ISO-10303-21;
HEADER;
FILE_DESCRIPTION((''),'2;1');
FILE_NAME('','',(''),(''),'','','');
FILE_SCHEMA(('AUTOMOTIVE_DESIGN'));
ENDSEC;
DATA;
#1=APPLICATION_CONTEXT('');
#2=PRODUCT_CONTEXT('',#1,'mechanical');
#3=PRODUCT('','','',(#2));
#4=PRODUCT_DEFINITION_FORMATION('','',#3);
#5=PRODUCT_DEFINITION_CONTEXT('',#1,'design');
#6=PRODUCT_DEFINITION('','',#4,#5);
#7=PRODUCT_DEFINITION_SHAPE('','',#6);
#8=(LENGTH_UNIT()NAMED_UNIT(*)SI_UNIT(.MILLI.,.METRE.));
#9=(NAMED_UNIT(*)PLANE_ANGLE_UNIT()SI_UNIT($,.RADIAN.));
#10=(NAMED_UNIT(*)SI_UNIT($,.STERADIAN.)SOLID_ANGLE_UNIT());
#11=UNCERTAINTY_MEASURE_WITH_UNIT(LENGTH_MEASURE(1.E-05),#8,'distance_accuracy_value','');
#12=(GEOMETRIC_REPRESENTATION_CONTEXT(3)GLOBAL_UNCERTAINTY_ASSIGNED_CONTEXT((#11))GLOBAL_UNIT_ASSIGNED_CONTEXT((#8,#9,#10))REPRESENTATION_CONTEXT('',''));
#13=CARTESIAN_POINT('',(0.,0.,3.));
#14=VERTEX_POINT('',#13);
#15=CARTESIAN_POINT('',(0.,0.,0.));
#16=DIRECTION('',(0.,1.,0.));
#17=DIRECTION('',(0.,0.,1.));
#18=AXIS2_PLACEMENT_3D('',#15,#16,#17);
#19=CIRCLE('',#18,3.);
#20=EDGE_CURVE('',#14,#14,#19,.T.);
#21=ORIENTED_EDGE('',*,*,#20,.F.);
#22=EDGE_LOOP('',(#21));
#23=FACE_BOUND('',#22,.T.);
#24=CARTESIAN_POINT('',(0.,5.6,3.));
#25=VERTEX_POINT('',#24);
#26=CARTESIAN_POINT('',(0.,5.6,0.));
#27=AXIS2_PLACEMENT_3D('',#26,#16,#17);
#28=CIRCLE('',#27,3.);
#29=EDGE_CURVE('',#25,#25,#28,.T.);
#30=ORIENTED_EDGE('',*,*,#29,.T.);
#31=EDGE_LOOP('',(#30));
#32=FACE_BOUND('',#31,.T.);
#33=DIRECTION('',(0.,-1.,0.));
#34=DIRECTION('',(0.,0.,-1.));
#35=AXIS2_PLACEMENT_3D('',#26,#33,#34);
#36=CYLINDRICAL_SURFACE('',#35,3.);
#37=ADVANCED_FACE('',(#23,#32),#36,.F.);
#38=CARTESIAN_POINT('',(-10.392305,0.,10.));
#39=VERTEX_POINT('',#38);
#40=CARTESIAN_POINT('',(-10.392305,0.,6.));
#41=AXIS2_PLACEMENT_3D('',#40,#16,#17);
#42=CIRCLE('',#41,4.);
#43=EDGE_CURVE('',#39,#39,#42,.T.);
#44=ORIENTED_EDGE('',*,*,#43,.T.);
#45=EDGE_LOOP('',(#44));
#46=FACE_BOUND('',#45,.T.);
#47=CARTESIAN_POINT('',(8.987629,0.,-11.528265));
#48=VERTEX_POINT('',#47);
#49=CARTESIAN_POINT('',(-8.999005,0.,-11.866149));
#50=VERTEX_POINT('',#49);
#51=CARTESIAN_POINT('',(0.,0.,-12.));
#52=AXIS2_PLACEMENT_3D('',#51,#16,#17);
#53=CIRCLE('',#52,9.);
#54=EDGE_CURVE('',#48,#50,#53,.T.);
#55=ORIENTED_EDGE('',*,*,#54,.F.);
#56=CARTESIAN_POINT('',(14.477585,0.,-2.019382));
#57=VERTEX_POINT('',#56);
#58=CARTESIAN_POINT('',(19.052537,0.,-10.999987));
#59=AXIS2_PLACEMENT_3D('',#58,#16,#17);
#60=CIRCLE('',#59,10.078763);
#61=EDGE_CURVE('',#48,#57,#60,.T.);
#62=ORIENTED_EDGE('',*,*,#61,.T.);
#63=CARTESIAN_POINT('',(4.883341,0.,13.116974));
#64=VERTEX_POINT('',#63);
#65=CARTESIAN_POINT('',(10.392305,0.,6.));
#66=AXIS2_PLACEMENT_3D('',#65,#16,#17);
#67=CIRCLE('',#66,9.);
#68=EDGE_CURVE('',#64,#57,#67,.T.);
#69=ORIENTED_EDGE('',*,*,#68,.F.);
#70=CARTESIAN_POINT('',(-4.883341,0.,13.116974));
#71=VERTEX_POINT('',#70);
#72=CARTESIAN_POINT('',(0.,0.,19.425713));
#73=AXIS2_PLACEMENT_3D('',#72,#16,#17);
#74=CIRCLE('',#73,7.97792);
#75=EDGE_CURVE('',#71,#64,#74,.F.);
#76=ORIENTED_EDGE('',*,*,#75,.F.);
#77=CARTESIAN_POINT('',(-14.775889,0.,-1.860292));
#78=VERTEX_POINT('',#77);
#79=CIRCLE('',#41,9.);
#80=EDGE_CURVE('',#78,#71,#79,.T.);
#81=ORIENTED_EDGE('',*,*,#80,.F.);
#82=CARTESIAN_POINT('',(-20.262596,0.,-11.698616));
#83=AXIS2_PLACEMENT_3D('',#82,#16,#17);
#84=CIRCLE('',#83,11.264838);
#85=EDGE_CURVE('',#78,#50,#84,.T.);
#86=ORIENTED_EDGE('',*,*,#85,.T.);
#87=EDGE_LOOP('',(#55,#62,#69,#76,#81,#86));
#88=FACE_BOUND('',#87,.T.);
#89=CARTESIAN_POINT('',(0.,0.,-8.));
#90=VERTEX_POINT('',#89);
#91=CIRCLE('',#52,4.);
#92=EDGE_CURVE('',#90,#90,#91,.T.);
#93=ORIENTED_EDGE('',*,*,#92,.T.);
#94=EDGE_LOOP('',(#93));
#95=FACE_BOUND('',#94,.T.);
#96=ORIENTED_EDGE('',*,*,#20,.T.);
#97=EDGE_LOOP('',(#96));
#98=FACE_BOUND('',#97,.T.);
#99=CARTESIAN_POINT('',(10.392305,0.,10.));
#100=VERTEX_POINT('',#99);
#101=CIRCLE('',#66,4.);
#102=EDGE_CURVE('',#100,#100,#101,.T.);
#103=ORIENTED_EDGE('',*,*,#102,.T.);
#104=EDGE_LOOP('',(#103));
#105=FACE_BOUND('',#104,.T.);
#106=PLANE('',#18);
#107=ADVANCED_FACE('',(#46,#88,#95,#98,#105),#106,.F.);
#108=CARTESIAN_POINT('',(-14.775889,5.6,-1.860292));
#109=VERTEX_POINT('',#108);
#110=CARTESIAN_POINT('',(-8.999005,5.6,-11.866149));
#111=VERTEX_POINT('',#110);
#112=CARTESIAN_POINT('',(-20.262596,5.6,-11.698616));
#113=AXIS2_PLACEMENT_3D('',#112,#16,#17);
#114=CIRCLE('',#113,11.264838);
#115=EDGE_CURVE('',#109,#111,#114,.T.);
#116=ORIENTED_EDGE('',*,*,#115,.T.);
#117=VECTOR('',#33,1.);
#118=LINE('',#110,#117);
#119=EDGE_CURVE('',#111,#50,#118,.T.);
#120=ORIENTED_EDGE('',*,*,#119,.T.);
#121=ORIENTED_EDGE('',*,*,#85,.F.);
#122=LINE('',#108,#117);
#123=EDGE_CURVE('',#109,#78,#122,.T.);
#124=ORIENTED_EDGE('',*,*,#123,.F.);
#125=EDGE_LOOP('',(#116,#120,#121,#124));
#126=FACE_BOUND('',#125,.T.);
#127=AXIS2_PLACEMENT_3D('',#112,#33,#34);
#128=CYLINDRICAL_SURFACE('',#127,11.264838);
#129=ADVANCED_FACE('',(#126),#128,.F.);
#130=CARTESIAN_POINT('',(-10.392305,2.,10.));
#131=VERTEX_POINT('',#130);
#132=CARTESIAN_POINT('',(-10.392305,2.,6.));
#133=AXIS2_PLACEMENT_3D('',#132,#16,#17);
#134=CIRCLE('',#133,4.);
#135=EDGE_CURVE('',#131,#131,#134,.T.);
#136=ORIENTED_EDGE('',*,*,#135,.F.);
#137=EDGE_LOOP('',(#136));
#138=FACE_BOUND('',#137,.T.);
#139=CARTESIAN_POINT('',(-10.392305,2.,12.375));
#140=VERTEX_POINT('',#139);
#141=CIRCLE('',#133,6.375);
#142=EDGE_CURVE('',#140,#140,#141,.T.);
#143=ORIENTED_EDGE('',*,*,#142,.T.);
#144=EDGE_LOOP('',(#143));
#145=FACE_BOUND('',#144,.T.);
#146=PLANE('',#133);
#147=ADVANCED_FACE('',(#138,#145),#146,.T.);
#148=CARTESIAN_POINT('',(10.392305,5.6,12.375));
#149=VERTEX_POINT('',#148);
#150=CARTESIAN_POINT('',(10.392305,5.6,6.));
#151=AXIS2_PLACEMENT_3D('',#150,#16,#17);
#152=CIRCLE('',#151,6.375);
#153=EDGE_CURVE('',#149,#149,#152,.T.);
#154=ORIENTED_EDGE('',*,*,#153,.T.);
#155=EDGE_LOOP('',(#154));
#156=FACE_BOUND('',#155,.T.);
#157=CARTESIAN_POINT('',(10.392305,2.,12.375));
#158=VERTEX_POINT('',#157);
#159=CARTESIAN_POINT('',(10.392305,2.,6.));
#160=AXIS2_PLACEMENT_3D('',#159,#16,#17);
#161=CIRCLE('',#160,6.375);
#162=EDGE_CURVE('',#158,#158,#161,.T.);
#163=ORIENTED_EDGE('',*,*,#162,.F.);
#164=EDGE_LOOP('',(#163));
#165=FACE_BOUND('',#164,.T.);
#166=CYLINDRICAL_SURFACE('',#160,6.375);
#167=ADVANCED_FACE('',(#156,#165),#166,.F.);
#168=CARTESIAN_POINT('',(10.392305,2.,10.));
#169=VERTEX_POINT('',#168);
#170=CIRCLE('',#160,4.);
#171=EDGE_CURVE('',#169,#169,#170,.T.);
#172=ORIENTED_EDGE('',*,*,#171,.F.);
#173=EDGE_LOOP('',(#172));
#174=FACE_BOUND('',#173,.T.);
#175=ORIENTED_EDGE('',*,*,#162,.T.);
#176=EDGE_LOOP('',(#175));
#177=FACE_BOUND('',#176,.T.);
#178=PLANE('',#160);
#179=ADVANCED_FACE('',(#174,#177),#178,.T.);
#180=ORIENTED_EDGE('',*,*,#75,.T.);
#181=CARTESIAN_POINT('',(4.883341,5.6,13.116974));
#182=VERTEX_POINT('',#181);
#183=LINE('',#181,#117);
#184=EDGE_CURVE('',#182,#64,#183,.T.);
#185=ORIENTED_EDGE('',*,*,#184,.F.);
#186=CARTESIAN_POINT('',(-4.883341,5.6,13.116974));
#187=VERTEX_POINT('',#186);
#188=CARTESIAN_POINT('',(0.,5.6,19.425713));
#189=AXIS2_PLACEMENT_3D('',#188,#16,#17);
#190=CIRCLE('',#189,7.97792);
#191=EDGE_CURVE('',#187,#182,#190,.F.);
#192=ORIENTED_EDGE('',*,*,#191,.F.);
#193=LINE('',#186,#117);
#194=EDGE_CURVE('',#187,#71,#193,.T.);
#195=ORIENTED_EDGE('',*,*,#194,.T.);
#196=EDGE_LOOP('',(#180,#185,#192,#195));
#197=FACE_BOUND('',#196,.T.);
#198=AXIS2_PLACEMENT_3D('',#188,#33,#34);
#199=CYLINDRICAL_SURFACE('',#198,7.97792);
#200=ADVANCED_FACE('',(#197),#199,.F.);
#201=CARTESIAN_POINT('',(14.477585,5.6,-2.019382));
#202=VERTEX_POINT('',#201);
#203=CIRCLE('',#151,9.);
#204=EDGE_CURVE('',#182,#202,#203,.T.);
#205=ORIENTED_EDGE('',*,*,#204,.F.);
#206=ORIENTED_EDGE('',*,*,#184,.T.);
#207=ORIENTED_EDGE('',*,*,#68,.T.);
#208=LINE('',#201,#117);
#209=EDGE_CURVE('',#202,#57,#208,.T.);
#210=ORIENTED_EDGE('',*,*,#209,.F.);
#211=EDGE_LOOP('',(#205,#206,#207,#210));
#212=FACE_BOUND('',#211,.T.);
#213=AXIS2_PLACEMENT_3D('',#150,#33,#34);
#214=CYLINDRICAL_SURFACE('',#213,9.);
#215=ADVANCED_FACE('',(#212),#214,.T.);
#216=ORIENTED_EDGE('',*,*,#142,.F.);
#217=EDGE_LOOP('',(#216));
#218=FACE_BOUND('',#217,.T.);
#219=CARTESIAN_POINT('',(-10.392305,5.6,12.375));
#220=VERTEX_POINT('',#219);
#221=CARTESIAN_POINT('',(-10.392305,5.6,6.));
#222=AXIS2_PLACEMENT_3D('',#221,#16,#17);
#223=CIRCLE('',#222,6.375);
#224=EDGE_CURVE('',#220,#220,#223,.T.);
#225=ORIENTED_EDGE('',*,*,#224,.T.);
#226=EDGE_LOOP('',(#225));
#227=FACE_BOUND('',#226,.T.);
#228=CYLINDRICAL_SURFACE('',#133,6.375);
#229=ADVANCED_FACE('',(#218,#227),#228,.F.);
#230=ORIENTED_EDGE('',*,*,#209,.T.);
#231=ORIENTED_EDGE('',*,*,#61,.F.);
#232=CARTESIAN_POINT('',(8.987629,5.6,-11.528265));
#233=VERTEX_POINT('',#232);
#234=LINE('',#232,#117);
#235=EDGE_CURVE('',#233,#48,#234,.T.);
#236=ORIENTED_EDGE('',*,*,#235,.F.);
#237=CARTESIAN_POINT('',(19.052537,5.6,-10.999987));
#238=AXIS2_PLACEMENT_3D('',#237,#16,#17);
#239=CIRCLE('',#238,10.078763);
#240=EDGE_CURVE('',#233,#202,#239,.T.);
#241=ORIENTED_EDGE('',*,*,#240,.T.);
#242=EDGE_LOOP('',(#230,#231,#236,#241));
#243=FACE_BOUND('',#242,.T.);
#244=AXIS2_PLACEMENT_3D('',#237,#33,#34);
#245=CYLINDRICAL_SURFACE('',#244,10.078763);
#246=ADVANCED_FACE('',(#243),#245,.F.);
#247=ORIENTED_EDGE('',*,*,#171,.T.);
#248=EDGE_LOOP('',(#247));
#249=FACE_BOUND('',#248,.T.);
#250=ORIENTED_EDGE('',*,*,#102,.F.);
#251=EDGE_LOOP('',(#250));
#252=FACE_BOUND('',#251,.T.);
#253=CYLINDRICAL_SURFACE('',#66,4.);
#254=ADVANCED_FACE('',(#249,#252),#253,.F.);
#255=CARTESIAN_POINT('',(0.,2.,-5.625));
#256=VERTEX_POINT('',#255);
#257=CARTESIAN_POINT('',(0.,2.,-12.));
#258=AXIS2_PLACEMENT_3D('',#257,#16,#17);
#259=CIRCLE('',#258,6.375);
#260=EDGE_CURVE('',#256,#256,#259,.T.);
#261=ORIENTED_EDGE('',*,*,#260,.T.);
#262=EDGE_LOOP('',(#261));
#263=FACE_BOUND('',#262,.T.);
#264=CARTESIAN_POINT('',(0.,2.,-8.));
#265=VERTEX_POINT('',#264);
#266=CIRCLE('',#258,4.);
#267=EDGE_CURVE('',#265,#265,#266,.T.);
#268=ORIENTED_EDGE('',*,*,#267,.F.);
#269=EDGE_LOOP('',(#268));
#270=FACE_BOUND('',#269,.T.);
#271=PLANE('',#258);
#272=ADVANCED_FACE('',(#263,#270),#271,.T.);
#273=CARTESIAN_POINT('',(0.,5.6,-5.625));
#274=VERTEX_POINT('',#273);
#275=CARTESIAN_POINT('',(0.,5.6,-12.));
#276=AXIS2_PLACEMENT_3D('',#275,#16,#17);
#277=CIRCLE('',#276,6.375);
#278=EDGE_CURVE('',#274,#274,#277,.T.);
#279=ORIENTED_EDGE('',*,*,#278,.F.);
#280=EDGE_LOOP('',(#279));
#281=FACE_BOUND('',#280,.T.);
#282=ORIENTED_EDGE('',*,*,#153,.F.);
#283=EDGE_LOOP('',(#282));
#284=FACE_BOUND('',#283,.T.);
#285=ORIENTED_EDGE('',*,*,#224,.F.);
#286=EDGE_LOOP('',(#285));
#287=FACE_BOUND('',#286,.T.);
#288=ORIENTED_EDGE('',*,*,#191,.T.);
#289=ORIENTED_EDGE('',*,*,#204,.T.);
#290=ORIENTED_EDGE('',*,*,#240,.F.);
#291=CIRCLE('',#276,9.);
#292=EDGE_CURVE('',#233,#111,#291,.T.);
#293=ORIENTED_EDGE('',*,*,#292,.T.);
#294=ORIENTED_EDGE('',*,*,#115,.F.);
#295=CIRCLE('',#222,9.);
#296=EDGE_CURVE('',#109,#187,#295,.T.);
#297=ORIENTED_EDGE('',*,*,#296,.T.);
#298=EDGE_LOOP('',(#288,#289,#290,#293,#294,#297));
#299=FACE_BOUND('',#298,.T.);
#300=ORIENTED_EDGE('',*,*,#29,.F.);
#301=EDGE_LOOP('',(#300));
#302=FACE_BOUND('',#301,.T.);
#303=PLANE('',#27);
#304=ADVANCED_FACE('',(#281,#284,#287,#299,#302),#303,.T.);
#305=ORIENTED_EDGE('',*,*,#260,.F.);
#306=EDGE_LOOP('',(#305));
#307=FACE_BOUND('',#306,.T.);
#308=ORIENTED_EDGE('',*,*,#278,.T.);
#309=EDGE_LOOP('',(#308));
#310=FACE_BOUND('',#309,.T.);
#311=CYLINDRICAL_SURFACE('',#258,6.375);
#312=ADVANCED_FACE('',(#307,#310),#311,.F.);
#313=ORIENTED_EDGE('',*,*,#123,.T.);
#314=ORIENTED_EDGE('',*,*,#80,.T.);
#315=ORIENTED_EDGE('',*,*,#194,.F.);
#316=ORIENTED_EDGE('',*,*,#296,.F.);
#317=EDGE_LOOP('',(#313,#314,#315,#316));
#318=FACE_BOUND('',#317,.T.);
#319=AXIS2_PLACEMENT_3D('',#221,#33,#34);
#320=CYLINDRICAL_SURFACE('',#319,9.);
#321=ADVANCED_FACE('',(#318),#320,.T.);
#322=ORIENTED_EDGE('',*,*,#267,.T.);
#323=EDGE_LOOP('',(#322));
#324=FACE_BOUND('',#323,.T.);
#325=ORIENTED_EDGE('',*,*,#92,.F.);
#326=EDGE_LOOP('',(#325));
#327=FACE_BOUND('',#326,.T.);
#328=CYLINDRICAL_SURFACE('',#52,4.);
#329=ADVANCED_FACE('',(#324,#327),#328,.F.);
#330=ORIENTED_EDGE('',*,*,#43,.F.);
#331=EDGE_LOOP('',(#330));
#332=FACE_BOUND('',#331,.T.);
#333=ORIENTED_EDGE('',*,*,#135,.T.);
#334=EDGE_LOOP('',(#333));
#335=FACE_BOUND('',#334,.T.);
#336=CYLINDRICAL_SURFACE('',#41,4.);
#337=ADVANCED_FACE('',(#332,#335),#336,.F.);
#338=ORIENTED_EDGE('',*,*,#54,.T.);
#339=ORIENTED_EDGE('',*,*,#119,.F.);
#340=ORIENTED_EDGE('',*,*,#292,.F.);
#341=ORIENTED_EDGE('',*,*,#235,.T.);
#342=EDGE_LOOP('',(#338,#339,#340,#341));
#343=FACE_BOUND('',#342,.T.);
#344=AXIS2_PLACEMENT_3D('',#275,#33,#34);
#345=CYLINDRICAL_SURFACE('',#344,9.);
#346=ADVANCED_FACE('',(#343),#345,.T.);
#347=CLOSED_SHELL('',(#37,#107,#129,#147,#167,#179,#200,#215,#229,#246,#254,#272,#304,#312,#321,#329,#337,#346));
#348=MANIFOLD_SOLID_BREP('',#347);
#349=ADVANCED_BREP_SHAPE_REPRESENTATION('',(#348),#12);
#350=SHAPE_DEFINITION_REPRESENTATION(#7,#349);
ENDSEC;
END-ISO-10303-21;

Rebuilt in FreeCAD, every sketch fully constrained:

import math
import FreeCAD as App
import Part
import Sketcher
Q = App.Units.Quantity

doc = App.newDocument("Part")
params = doc.addObject("Spreadsheet::Sheet", "Params")
for row, (alias, value) in enumerate([
    ("sketch1_diameter", "6 mm"),
    ("sketch1_radius", "9 mm"),
    ("pad1_length", "5.6 mm"),
    ("sketch2_diameter", "12.75 mm"),
    ("pocket1_length", "3.6 mm"),
    ("sketch3_diameter", "8 mm"),
], start=1):
    params.set(f"A{row}", alias)
    params.set(f"B{row}", "=" + value)
    params.setAlias(f"B{row}", alias)

body = doc.addObject("PartDesign::Body", "Body")

# Sketch on XZ plane
sketch1 = doc.addObject("Sketcher::SketchObject", "Sketch")
body.addObject(sketch1)
sketch1.AttachmentSupport = (doc.XZ_Plane, [""])
sketch1.MapMode = "FlatFace"
sketch1.addGeometry([
    Part.ArcOfCircle(Part.Circle(App.Vector(-10.4, 6, 0), App.Vector(0, 0, 1), 9), math.radians(52), math.radians(241)),  # 0
    Part.ArcOfCircle(Part.Circle(App.Vector(0, 19.4, 0), App.Vector(0, 0, 1), 8), math.radians(-128), math.radians(-52)),  # 1
    Part.ArcOfCircle(Part.Circle(App.Vector(10.4, 6, 0), App.Vector(0, 0, 1), 9), math.radians(-63), math.radians(128)),  # 2
    Part.ArcOfCircle(Part.Circle(App.Vector(19.1, -11, 0), App.Vector(0, 0, 1), 10.1), math.radians(117), math.radians(183)),  # 3
    Part.ArcOfCircle(Part.Circle(App.Vector(0, -12, 0), App.Vector(0, 0, 1), 9), math.radians(179), math.radians(363)),  # 4
    Part.ArcOfCircle(Part.Circle(App.Vector(-20.3, -11.7, 0), App.Vector(0, 0, 1), 11.3), math.radians(-1), math.radians(61)),  # 5
    Part.Circle(App.Vector(0, 0, 0), App.Vector(0, 0, 1), 3),  # 6
], False)
sketch1.addConstraint([
    Sketcher.Constraint("Tangent", 0, 1, 1, 1),
    Sketcher.Constraint("Tangent", 1, 2, 2, 2),
    Sketcher.Constraint("Tangent", 2, 1, 3, 1),
    Sketcher.Constraint("Tangent", 3, 2, 4, 2),
    Sketcher.Constraint("Tangent", 4, 1, 5, 1),
    Sketcher.Constraint("Tangent", 5, 2, 0, 2),
    Sketcher.Constraint("Coincident", 6, 3, -1, 1),
    Sketcher.Constraint("Equal", 0, 2),
    Sketcher.Constraint("Equal", 2, 4),
    Sketcher.Constraint("Symmetric", 0, 3, 2, 3, -2),
    Sketcher.Constraint("PointOnObject", 4, 3, -2),
    Sketcher.Constraint("Diameter", 6, Q("6 mm")),
    Sketcher.Constraint("Radius", 0, Q("9 mm")),
    Sketcher.Constraint("DistanceY", -1, 1, 0, 3, Q("6 mm")),
    Sketcher.Constraint("DistanceY", 4, 3, -1, 1, Q("12 mm")),
    Sketcher.Constraint("Radius", 1, Q("7.97792 mm")),
    Sketcher.Constraint("Radius", 3, Q("10.078763 mm")),
    Sketcher.Constraint("Radius", 5, Q("11.264838 mm")),
    Sketcher.Constraint("DistanceY", 3, 3, 1, 3, Q("30.4257 mm")),
])
sketch1.setExpression("Constraints[11]", "Params.sketch1_diameter")
sketch1.setExpression("Constraints[12]", "Params.sketch1_radius")
pad1 = doc.addObject("PartDesign::Pad", "Pad")
body.addObject(pad1)
pad1.Profile = sketch1
pad1.setExpression("Length", "Params.pad1_length")
pad1.Reversed = True

# Sketch on XZ plane
sketch2 = doc.addObject("Sketcher::SketchObject", "Sketch001")
body.addObject(sketch2)
sketch2.AttachmentSupport = (doc.XZ_Plane, [""])
sketch2.MapMode = "FlatFace"
sketch2.AttachmentOffset = App.Placement(App.Vector(0, 0, -5.6), App.Rotation())
sketch2.addGeometry([
    Part.Circle(App.Vector(-10, 6, 0), App.Vector(0, 0, 1), 6),
    Part.Circle(App.Vector(0, -12, 0), App.Vector(0, 0, 1), 6),
    Part.Circle(App.Vector(10, 6, 0), App.Vector(0, 0, 1), 6),
], False)
sketch2.addConstraint([
    Sketcher.Constraint("Equal", 0, 1),
    Sketcher.Constraint("Equal", 1, 2),
    Sketcher.Constraint("Symmetric", 0, 3, 2, 3, -2),
    Sketcher.Constraint("PointOnObject", 1, 3, -2),
    Sketcher.Constraint("Diameter", 0, Q("12.75 mm")),
    Sketcher.Constraint("DistanceY", -1, 1, 0, 3, Q("6 mm")),
    Sketcher.Constraint("DistanceY", 1, 3, -1, 1, Q("12 mm")),
    Sketcher.Constraint("DistanceX", 0, 3, 2, 3, Q("20.78461 mm")),
])
sketch2.setExpression("Constraints[4]", "Params.sketch2_diameter")
pocket1 = doc.addObject("PartDesign::Pocket", "Pocket")
body.addObject(pocket1)
pocket1.Profile = sketch2
pocket1.setExpression("Length", "Params.pocket1_length")
pocket1.Reversed = True

# Sketch on XZ plane
sketch3 = doc.addObject("Sketcher::SketchObject", "Sketch002")
body.addObject(sketch3)
sketch3.AttachmentSupport = (doc.XZ_Plane, [""])
sketch3.MapMode = "FlatFace"
sketch3.AttachmentOffset = App.Placement(App.Vector(0, 0, -2), App.Rotation())
sketch3.addGeometry([
    Part.Circle(App.Vector(-10.4, 6, 0), App.Vector(0, 0, 1), 4),
    Part.Circle(App.Vector(0, -12, 0), App.Vector(0, 0, 1), 4),
    Part.Circle(App.Vector(10.4, 6, 0), App.Vector(0, 0, 1), 4),
], False)
sketch3.addConstraint([
    Sketcher.Constraint("Equal", 0, 1),
    Sketcher.Constraint("Equal", 1, 2),
    Sketcher.Constraint("Symmetric", 0, 3, 2, 3, -2),
    Sketcher.Constraint("PointOnObject", 1, 3, -2),
    Sketcher.Constraint("Diameter", 0, Q("8 mm")),
    Sketcher.Constraint("DistanceY", -1, 1, 0, 3, Q("6 mm")),
    Sketcher.Constraint("DistanceY", 1, 3, -1, 1, Q("12 mm")),
    Sketcher.Constraint("DistanceX", 0, 3, 2, 3, Q("20.78461 mm")),
])
sketch3.setExpression("Constraints[4]", "Params.sketch3_diameter")
pocket2 = doc.addObject("PartDesign::Pocket", "Pocket001")
body.addObject(pocket2)
pocket2.Profile = sketch3
pocket2.Type = "ThroughAll"
pocket2.Reversed = True

doc.recompute()
